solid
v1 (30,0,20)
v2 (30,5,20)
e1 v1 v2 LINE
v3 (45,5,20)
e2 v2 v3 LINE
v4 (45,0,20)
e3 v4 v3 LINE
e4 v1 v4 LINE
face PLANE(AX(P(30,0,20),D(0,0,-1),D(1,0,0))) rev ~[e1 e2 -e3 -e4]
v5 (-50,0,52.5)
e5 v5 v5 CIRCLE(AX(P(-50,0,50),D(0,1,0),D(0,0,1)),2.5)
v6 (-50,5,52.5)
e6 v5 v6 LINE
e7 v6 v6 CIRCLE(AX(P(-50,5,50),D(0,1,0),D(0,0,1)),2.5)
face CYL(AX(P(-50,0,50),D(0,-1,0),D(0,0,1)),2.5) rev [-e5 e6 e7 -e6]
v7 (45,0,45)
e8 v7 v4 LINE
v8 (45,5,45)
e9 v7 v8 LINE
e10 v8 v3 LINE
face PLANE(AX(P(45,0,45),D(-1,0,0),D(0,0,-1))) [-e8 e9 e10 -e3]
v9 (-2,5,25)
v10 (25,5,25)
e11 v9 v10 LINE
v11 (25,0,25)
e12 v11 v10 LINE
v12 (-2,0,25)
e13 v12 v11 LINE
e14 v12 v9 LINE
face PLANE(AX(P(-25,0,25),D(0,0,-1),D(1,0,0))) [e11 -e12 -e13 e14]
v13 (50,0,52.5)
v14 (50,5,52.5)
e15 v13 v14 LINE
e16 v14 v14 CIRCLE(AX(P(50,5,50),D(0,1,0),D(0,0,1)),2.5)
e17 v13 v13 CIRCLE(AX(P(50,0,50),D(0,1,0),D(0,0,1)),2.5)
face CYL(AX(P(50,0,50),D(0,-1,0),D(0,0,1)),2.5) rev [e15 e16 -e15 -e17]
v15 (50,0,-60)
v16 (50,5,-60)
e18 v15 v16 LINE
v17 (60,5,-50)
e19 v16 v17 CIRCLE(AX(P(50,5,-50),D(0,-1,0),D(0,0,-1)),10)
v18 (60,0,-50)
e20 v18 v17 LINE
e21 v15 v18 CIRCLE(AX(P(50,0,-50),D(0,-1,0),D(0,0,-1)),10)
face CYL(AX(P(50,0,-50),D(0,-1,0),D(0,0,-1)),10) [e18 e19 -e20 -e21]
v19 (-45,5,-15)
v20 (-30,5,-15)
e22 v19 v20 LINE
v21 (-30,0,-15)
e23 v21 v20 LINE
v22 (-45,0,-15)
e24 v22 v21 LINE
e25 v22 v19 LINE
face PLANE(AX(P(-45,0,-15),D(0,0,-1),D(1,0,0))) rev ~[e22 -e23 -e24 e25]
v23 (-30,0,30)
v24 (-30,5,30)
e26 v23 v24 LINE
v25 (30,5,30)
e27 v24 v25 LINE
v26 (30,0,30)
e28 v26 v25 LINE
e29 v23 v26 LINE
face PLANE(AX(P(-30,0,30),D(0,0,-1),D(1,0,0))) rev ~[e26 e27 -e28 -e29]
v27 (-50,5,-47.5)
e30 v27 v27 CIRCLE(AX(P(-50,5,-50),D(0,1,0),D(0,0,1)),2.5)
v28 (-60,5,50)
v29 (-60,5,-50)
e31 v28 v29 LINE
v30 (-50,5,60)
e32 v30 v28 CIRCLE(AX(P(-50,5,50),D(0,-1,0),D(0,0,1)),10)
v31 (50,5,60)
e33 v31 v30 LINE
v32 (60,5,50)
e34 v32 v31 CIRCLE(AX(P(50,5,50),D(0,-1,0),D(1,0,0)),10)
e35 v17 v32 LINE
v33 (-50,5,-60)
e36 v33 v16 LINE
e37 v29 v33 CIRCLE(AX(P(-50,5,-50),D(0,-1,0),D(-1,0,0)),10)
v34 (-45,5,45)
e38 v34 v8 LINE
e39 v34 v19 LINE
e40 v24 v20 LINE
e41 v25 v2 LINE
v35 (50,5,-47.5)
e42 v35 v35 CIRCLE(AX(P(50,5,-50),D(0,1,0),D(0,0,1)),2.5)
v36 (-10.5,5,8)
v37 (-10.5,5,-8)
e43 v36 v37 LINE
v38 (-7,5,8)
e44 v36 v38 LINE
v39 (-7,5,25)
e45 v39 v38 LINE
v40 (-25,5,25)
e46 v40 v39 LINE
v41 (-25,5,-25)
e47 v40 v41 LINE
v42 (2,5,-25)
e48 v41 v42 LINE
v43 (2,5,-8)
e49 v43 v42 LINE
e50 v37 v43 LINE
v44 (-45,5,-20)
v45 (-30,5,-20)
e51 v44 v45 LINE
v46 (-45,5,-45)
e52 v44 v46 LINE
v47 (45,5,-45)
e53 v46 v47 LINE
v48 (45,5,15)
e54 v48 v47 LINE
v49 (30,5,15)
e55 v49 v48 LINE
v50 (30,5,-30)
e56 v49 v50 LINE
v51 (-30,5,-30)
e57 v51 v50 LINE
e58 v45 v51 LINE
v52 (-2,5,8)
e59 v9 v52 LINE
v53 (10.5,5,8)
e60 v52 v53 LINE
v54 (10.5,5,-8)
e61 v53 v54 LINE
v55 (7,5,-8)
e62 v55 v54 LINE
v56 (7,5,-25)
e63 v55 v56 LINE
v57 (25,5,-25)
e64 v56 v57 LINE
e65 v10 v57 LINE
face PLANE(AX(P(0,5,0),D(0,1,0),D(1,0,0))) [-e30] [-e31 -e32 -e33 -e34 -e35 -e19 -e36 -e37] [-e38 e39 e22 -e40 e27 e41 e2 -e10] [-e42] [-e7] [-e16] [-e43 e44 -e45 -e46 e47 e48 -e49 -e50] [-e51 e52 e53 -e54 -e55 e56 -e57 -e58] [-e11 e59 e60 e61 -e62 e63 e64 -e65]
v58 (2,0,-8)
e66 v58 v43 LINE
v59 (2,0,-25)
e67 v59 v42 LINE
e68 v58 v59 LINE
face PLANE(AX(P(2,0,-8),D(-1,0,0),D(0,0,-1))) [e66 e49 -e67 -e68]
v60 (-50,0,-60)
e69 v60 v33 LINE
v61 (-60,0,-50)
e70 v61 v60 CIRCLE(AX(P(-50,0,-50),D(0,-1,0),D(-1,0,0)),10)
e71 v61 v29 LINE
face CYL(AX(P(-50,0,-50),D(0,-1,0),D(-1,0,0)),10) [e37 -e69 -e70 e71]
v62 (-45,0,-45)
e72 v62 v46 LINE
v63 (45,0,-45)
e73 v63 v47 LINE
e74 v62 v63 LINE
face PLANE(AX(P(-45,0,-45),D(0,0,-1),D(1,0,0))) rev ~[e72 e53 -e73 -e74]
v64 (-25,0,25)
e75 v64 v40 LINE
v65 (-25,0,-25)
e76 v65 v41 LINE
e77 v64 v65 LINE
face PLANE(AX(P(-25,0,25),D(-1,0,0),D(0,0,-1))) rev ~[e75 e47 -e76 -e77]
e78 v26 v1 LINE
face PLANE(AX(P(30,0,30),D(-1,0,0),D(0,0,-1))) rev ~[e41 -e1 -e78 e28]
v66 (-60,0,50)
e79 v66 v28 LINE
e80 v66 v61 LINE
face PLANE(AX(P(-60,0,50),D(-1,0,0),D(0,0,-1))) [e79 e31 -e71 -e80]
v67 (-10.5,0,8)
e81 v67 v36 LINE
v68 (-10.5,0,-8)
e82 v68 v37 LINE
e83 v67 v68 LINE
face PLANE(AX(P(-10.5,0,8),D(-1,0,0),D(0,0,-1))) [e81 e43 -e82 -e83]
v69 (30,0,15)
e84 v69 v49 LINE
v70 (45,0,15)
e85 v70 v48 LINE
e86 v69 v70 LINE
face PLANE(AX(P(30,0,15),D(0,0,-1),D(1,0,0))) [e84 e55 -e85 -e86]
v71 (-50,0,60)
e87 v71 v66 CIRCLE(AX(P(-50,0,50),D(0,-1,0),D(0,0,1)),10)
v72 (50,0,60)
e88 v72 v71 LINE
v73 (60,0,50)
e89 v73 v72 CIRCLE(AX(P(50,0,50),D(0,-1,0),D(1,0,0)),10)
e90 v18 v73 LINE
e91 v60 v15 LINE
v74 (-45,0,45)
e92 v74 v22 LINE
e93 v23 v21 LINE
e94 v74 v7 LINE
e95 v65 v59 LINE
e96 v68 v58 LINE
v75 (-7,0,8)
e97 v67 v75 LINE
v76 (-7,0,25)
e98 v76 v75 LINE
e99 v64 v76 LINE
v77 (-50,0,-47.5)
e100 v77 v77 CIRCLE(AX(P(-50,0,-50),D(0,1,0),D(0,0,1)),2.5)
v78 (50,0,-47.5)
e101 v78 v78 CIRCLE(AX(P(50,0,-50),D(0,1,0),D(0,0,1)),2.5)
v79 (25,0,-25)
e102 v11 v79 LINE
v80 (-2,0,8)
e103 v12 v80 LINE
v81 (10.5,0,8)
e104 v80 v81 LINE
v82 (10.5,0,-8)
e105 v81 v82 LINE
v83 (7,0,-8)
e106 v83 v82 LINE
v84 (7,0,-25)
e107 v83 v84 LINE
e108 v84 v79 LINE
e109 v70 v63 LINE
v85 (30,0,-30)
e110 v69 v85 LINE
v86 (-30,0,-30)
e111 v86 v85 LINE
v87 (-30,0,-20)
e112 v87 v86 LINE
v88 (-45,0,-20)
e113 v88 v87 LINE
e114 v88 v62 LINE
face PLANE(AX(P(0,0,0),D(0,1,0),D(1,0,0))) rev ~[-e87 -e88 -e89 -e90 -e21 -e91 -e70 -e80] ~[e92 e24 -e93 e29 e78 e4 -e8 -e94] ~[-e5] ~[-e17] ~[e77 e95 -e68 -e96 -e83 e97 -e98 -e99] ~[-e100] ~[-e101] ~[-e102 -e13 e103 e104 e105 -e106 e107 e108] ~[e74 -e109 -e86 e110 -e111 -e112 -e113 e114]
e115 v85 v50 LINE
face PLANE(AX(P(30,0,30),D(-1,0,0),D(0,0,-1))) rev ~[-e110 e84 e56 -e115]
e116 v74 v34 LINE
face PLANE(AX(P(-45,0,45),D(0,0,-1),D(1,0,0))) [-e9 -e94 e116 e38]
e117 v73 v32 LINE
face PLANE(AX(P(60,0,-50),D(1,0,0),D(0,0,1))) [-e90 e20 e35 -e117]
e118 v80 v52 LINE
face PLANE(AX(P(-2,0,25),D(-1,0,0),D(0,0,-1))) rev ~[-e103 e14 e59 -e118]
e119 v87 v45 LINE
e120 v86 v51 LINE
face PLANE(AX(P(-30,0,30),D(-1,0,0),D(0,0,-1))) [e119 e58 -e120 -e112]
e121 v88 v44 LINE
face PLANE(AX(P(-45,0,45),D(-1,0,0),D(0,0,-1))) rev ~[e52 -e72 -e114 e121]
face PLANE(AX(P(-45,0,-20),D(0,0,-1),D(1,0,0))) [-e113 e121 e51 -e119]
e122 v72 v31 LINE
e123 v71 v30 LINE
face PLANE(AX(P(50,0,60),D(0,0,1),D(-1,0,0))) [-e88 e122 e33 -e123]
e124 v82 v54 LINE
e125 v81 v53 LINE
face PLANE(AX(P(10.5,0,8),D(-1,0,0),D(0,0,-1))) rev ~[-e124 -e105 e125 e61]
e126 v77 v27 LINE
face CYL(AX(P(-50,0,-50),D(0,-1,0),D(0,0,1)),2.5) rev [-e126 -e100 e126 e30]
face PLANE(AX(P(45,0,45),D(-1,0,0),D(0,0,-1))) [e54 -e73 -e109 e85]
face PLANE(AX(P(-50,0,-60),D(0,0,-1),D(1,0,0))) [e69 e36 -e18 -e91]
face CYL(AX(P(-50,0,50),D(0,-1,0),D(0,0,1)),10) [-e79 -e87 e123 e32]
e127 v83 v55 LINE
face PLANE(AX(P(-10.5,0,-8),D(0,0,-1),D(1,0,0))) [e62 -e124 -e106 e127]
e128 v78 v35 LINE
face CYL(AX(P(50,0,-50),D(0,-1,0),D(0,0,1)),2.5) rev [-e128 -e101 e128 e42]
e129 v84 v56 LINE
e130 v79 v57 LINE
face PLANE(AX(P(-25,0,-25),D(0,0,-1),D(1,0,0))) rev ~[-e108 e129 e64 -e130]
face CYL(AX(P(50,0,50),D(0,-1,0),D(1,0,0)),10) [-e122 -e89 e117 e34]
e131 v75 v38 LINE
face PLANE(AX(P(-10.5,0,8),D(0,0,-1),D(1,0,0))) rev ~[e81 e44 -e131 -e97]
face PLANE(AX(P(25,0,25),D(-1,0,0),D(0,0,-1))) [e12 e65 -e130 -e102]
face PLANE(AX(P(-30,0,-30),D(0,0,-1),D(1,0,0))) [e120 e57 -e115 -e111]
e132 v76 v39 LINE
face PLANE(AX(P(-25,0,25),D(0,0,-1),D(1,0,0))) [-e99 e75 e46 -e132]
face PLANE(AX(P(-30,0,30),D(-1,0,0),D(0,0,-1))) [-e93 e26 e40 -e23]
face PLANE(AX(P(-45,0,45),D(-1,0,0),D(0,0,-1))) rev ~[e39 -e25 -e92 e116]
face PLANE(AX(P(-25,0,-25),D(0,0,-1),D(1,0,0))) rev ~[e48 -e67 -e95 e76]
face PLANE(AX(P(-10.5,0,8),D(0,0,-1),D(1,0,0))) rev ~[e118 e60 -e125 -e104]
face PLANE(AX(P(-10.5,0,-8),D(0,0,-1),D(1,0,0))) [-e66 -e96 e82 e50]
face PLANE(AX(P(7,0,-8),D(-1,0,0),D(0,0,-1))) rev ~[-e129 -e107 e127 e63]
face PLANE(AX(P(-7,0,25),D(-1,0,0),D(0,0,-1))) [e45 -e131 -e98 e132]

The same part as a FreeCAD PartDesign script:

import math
import FreeCAD as App
import Part
import Sketcher
from FreeCAD import Vector
Q = App.Units.Quantity

doc = App.newDocument("Part")
body = doc.addObject("PartDesign::Body", "Body")

# Sketch on XZ plane
sketch1 = body.newObject("Sketcher::SketchObject", "Sketch")
sketch1.AttachmentSupport = (doc.getObject("XZ_Plane"), [""])
sketch1.MapMode = "FlatFace"
sketch1.addGeometry([
    Part.ArcOfCircle(Part.Circle(Vector(-50, -50, 0), Vector(0, 0, 1), 10), math.radians(180), math.radians(270)),  # 0
    Part.LineSegment(Vector(-60, -50, 0), Vector(-60, 50, 0)),  # 1
    Part.ArcOfCircle(Part.Circle(Vector(-50, 50, 0), Vector(0, 0, 1), 10), math.radians(90), math.radians(180)),  # 2
    Part.LineSegment(Vector(-50, 60, 0), Vector(50, 60, 0)),  # 3
    Part.ArcOfCircle(Part.Circle(Vector(50, 50, 0), Vector(0, 0, 1), 10), math.radians(0), math.radians(90)),  # 4
    Part.LineSegment(Vector(60, 50, 0), Vector(60, -50, 0)),  # 5
    Part.ArcOfCircle(Part.Circle(Vector(50, -50, 0), Vector(0, 0, 1), 10), math.radians(-90), math.radians(0)),  # 6
    Part.LineSegment(Vector(50, -60, 0), Vector(-50, -60, 0)),  # 7
    Part.Circle(Vector(50, 50, 0), Vector(0, 0, 1), 2.5),  # 8
    Part.Circle(Vector(-50, 50, 0), Vector(0, 0, 1), 2.5),  # 9
    Part.Circle(Vector(50, -50, 0), Vector(0, 0, 1), 2.5),  # 10
    Part.LineSegment(Vector(-45, 45, 0), Vector(-45, -45, 0)),  # 11
    Part.LineSegment(Vector(-45, -45, 0), Vector(45, -45, 0)),  # 12
    Part.LineSegment(Vector(45, -45, 0), Vector(45, 45, 0)),  # 13
    Part.LineSegment(Vector(45, 45, 0), Vector(-45, 45, 0)),  # 14
    Part.Circle(Vector(-50, -50, 0), Vector(0, 0, 1), 2.5),  # 15
], False)
sketch1.addConstraint([
    Sketcher.Constraint("Tangent", 0, 1, 1, 1),
    Sketcher.Constraint("Tangent", 1, 2, 2, 2),
    Sketcher.Constraint("Tangent", 2, 1, 3, 1),
    Sketcher.Constraint("Tangent", 3, 2, 4, 2),
    Sketcher.Constraint("Tangent", 4, 1, 5, 1),
    Sketcher.Constraint("Tangent", 5, 2, 6, 2),
    Sketcher.Constraint("Tangent", 6, 1, 7, 1),
    Sketcher.Constraint("Tangent", 7, 2, 0, 2),
    Sketcher.Constraint("Coincident", 11, 2, 12, 1),
    Sketcher.Constraint("Coincident", 12, 2, 13, 1),
    Sketcher.Constraint("Coincident", 13, 2, 14, 1),
    Sketcher.Constraint("Coincident", 14, 2, 11, 1),
    Sketcher.Constraint("Vertical", 1),
    Sketcher.Constraint("Horizontal", 3),
    Sketcher.Constraint("Vertical", 5),
    Sketcher.Constraint("Horizontal", 7),
    Sketcher.Constraint("Vertical", 11),
    Sketcher.Constraint("Horizontal", 12),
    Sketcher.Constraint("Vertical", 13),
    Sketcher.Constraint("Horizontal", 14),
    Sketcher.Constraint("Coincident", 8, 3, 4, 3),
    Sketcher.Constraint("Coincident", 9, 3, 2, 3),
    Sketcher.Constraint("Coincident", 10, 3, 6, 3),
    Sketcher.Constraint("Coincident", 15, 3, 0, 3),
    Sketcher.Constraint("Equal", 0, 2),
    Sketcher.Constraint("Equal", 2, 4),
    Sketcher.Constraint("Equal", 4, 6),
    Sketcher.Constraint("Equal", 8, 9),
    Sketcher.Constraint("Equal", 9, 10),
    Sketcher.Constraint("Equal", 10, 15),
    Sketcher.Constraint("Symmetric", 0, 3, 4, 3, -1, 1),
    Sketcher.Constraint("Symmetric", 11, 2, 13, 2, -1, 1),
    Sketcher.Constraint("Equal", 7, 1),
    Sketcher.Constraint("Equal", 14, 11),
    Sketcher.Constraint("Diameter", 8, Q("5 mm")),
    Sketcher.Constraint("Radius", 0, Q("10 mm")),
    Sketcher.Constraint("DistanceX", 3, 1, 3, 2, Q("100 mm")),
    Sketcher.Constraint("DistanceX", 12, 1, 12, 2, Q("90 mm")),
])
pad1 = body.newObject("PartDesign::Pad", "Pad")
pad1.Profile = sketch1
pad1.Length = 5
pad1.Reversed = True
body2 = doc.addObject("PartDesign::Body", "Body001")

# Sketch on XZ plane
sketch2 = body2.newObject("Sketcher::SketchObject", "Sketch001")
sketch2.AttachmentSupport = (doc.getObject("XZ_Plane001"), [""])
sketch2.MapMode = "FlatFace"
sketch2.addGeometry([
    Part.LineSegment(Vector(-30, -30, 0), Vector(-30, 30, 0)),  # 0
    Part.LineSegment(Vector(-30, 30, 0), Vector(30, 30, 0)),  # 1
    Part.LineSegment(Vector(30, 30, 0), Vector(30, -30, 0)),  # 2
    Part.LineSegment(Vector(30, -30, 0), Vector(-30, -30, 0)),  # 3
    Part.LineSegment(Vector(25, 25, 0), Vector(-25, 25, 0)),  # 4
    Part.LineSegment(Vector(-25, 25, 0), Vector(-25, -25, 0)),  # 5
    Part.LineSegment(Vector(-25, -25, 0), Vector(25, -25, 0)),  # 6
    Part.LineSegment(Vector(25, -25, 0), Vector(25, 25, 0)),  # 7
], False)
sketch2.addConstraint([
    Sketcher.Constraint("Coincident", 0, 2, 1, 1),
    Sketcher.Constraint("Coincident", 1, 2, 2, 1),
    Sketcher.Constraint("Coincident", 2, 2, 3, 1),
    Sketcher.Constraint("Coincident", 3, 2, 0, 1),
    Sketcher.Constraint("Coincident", 4, 2, 5, 1),
    Sketcher.Constraint("Coincident", 5, 2, 6, 1),
    Sketcher.Constraint("Coincident", 6, 2, 7, 1),
    Sketcher.Constraint("Coincident", 7, 2, 4, 1),
    Sketcher.Constraint("Vertical", 0),
    Sketcher.Constraint("Horizontal", 1),
    Sketcher.Constraint("Vertical", 2),
    Sketcher.Constraint("Horizontal", 3),
    Sketcher.Constraint("Horizontal", 4),
    Sketcher.Constraint("Vertical", 5),
    Sketcher.Constraint("Horizontal", 6),
    Sketcher.Constraint("Vertical", 7),
    Sketcher.Constraint("Symmetric", 0, 2, 2, 2, -1, 1),
    Sketcher.Constraint("Symmetric", 4, 2, 6, 2, -1, 1),
    Sketcher.Constraint("Equal", 3, 0),
    Sketcher.Constraint("Equal", 6, 5),
    Sketcher.Constraint("DistanceX", 1, 1, 1, 2, Q("60 mm")),
    Sketcher.Constraint("DistanceX", 4, 2, 4, 1, Q("50 mm")),
])
pad2 = body2.newObject("PartDesign::Pad", "Pad001")
pad2.Profile = sketch2
pad2.Length = 5
pad2.Reversed = True
body3 = doc.addObject("PartDesign::Body", "Body002")

# Sketch on XZ plane
sketch3 = body3.newObject("Sketcher::SketchObject", "Sketch002")
sketch3.AttachmentSupport = (doc.getObject("XZ_Plane002"), [""])
sketch3.MapMode = "FlatFace"
sketch3.addGeometry([
    Part.LineSegment(Vector(-10, -8, 0), Vector(-10, 8, 0)),
    Part.LineSegment(Vector(-10, 8, 0), Vector(10, 8, 0)),
    Part.LineSegment(Vector(10, 8, 0), Vector(10, -8, 0)),
    Part.LineSegment(Vector(10, -8, 0), Vector(-10, -8, 0)),
], False)
sketch3.addConstraint([
    Sketcher.Constraint("Coincident", 0, 2, 1, 1),
    Sketcher.Constraint("Coincident", 1, 2, 2, 1),
    Sketcher.Constraint("Coincident", 2, 2, 3, 1),
    Sketcher.Constraint("Coincident", 3, 2, 0, 1),
    Sketcher.Constraint("Vertical", 0),
    Sketcher.Constraint("Horizontal", 1),
    Sketcher.Constraint("Vertical", 2),
    Sketcher.Constraint("Horizontal", 3),
    Sketcher.Constraint("Symmetric", 0, 2, 2, 2, -1, 1),
    Sketcher.Constraint("DistanceX", 1, 1, 1, 2, Q("21 mm")),
    Sketcher.Constraint("DistanceY", 0, 1, 0, 2, Q("16 mm")),
])
pad3 = body3.newObject("PartDesign::Pad", "Pad002")
pad3.Profile = sketch3
pad3.Length = 5
pad3.Reversed = True
body.AllowCompound = True
doc.recompute()

boolean = body.newObject("PartDesign::Boolean", "Boolean")
boolean.Type = "Fuse"
boolean.addObjects([body2])
doc.recompute()

boolean2 = body.newObject("PartDesign::Boolean", "Boolean001")
boolean2.Type = "Fuse"
boolean2.addObjects([body3])

# Sketch on XZ plane
sketch4 = body.newObject("Sketcher::SketchObject", "Sketch003")
sketch4.AttachmentSupport = (doc.getObject("XZ_Plane"), [""])
sketch4.MapMode = "FlatFace"
sketch4.addGeometry([
    Part.LineSegment(Vector(-7, 8, 0), Vector(-7, 25, 0)),  # 0
    Part.LineSegment(Vector(-7, 25, 0), Vector(-2, 25, 0)),  # 1
    Part.LineSegment(Vector(-2, 25, 0), Vector(-2, 8, 0)),  # 2
    Part.LineSegment(Vector(-2, 8, 0), Vector(-7, 8, 0)),  # 3
    Part.LineSegment(Vector(2, -25, 0), Vector(2, -8, 0)),  # 4
    Part.LineSegment(Vector(2, -8, 0), Vector(7, -8, 0)),  # 5
    Part.LineSegment(Vector(7, -8, 0), Vector(7, -25, 0)),  # 6
    Part.LineSegment(Vector(7, -25, 0), Vector(2, -25, 0)),  # 7
    Part.LineSegment(Vector(-45, -20, 0), Vector(-45, -15, 0)),  # 8
    Part.LineSegment(Vector(-45, -15, 0), Vector(-30, -15, 0)),  # 9
    Part.LineSegment(Vector(-30, -15, 0), Vector(-30, -20, 0)),  # 10
    Part.LineSegment(Vector(-30, -20, 0), Vector(-45, -20, 0)),  # 11
    Part.LineSegment(Vector(30, 15, 0), Vector(30, 20, 0)),  # 12
    Part.LineSegment(Vector(30, 20, 0), Vector(45, 20, 0)),  # 13
    Part.LineSegment(Vector(45, 20, 0), Vector(45, 15, 0)),  # 14
    Part.LineSegment(Vector(45, 15, 0), Vector(30, 15, 0)),  # 15
], False)
sketch4.addConstraint([
    Sketcher.Constraint("Coincident", 0, 2, 1, 1),
    Sketcher.Constraint("Coincident", 1, 2, 2, 1),
    Sketcher.Constraint("Coincident", 2, 2, 3, 1),
    Sketcher.Constraint("Coincident", 3, 2, 0, 1),
    Sketcher.Constraint("Coincident", 4, 2, 5, 1),
    Sketcher.Constraint("Coincident", 5, 2, 6, 1),
    Sketcher.Constraint("Coincident", 6, 2, 7, 1),
    Sketcher.Constraint("Coincident", 7, 2, 4, 1),
    Sketcher.Constraint("Coincident", 8, 2, 9, 1),
    Sketcher.Constraint("Coincident", 9, 2, 10, 1),
    Sketcher.Constraint("Coincident", 10, 2, 11, 1),
    Sketcher.Constraint("Coincident", 11, 2, 8, 1),
    Sketcher.Constraint("Coincident", 12, 2, 13, 1),
    Sketcher.Constraint("Coincident", 13, 2, 14, 1),
    Sketcher.Constraint("Coincident", 14, 2, 15, 1),
    Sketcher.Constraint("Coincident", 15, 2, 12, 1),
    Sketcher.Constraint("Vertical", 0),
    Sketcher.Constraint("Horizontal", 1),
    Sketcher.Constraint("Vertical", 2),
    Sketcher.Constraint("Horizontal", 3),
    Sketcher.Constraint("Vertical", 4),
    Sketcher.Constraint("Horizontal", 5),
    Sketcher.Constraint("Vertical", 6),
    Sketcher.Constraint("Horizontal", 7),
    Sketcher.Constraint("Vertical", 8),
    Sketcher.Constraint("Horizontal", 9),
    Sketcher.Constraint("Vertical", 10),
    Sketcher.Constraint("Horizontal", 11),
    Sketcher.Constraint("Vertical", 12),
    Sketcher.Constraint("Horizontal", 13),
    Sketcher.Constraint("Vertical", 14),
    Sketcher.Constraint("Horizontal", 15),
    Sketcher.Constraint("Symmetric", 2, 2, 4, 2, -1, 1),
    Sketcher.Constraint("Symmetric", 0, 2, 6, 2, -1, 1),
    Sketcher.Constraint("Symmetric", 10, 2, 12, 2, -1, 1),
    Sketcher.Constraint("Symmetric", 8, 2, 14, 2, -1, 1),
    Sketcher.Constraint("Equal", 7, 8),
    Sketcher.Constraint("DistanceX", 1, 1, 1, 2, Q("5 mm")),
    Sketcher.Constraint("DistanceX", 9, 1, 9, 2, Q("15 mm")),
    Sketcher.Constraint("DistanceY", 0, 1, 0, 2, Q("17 mm")),
    Sketcher.Constraint("DistanceX", 0, 2, -1, 1, Q("7 mm")),
    Sketcher.Constraint("DistanceY", -1, 1, 0, 2, Q("25 mm")),
    Sketcher.Constraint("DistanceX", 8, 2, -1, 1, Q("45 mm")),
    Sketcher.Constraint("DistanceY", 8, 2, -1, 1, Q("15 mm")),
])
pad4 = body.newObject("PartDesign::Pad", "Pad003")
pad4.Profile = sketch4
pad4.Length = 5
pad4.Reversed = True

doc.recompute()
